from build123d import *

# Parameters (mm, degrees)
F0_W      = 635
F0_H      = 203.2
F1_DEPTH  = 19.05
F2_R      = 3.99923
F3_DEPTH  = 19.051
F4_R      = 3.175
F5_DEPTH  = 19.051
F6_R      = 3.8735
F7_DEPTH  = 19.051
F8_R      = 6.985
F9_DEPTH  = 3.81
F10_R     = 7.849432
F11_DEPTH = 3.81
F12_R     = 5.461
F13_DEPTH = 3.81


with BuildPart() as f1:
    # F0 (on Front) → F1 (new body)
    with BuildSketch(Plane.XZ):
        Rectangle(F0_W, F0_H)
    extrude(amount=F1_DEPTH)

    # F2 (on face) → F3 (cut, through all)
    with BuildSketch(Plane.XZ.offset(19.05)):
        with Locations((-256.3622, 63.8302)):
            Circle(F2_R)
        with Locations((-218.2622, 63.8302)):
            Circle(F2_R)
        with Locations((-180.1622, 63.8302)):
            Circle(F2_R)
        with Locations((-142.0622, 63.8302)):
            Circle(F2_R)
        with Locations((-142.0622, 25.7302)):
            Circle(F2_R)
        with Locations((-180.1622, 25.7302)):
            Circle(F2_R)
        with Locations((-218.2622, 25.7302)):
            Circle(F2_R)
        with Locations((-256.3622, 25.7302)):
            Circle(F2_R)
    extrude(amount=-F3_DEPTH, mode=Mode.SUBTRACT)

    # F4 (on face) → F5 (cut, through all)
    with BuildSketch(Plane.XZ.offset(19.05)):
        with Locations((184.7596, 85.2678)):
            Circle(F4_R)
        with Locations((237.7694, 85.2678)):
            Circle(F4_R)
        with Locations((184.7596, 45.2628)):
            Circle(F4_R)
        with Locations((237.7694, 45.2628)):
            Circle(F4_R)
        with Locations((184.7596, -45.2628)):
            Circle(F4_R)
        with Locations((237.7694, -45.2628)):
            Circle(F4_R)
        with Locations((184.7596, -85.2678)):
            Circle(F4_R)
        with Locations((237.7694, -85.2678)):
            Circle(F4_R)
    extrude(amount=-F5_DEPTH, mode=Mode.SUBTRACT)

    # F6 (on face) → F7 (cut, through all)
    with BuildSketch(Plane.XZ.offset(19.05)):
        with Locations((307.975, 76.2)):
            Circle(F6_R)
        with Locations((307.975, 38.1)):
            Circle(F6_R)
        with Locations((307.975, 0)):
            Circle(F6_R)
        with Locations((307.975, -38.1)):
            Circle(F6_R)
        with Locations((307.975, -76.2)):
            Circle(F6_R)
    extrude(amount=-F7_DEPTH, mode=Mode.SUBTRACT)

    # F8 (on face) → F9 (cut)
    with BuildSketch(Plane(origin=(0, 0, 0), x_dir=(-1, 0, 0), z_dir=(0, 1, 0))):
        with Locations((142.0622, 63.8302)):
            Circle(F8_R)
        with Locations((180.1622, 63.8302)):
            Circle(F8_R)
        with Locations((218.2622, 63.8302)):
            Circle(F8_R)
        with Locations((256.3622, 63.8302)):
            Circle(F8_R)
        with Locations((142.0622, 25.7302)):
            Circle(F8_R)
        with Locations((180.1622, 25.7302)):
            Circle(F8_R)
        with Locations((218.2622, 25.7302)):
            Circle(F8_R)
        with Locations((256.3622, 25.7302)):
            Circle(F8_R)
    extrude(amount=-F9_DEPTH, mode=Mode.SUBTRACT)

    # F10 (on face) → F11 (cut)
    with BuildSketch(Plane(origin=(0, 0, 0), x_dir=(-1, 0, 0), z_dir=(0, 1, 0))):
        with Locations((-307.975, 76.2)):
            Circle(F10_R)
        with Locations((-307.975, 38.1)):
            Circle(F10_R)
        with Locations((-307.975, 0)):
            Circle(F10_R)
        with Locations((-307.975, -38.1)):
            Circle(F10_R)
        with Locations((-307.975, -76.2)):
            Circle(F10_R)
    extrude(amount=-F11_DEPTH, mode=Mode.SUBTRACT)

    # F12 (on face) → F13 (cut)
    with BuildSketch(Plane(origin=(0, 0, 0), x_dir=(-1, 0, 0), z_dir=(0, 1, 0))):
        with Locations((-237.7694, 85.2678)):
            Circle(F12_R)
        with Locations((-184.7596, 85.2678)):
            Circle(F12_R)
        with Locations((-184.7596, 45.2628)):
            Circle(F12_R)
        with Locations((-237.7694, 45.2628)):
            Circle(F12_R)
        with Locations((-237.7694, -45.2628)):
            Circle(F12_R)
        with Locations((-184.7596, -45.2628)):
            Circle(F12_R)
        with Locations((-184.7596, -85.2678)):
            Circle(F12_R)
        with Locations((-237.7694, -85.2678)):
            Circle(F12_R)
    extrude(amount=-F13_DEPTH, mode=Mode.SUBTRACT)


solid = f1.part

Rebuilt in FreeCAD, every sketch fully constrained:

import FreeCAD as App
import Part
import Sketcher
from FreeCAD import Vector
Q = App.Units.Quantity


def add_polygon(sketch, points):
    """Adds a closed chain of lines whose ends are joined by coincident constraints."""
    first, n = sketch.GeometryCount, len(points)
    for a, b in zip(points, points[1:] + points[:1]):
        sketch.addGeometry(Part.LineSegment(App.Vector(*a, 0), App.Vector(*b, 0)), False)
    for i in range(n):
        sketch.addConstraint(Sketcher.Constraint("Coincident", first + i, 2, first + (i + 1) % n, 1))

doc = App.newDocument("Part")
body = doc.addObject("PartDesign::Body", "Body")

# Sketch on XZ plane
sketch1 = doc.addObject("Sketcher::SketchObject", "Sketch")
body.addObject(sketch1)
sketch1.AttachmentSupport = (doc.XZ_Plane, [""])
sketch1.MapMode = "FlatFace"
add_polygon(sketch1, [(-318, 102), (-318, -102), (318, -102), (318, 102)])  # lines 0-3
sketch1.addConstraint([
    Sketcher.Constraint("Vertical", 0),
    Sketcher.Constraint("Horizontal", 1),
    Sketcher.Constraint("Vertical", 2),
    Sketcher.Constraint("Horizontal", 3),
    Sketcher.Constraint("Symmetric", 0, 2, 2, 2, -1, 1),
    Sketcher.Constraint("DistanceX", 1, 1, 1, 2, Q("25 in")),
    Sketcher.Constraint("DistanceY", 0, 2, 0, 1, Q("8 in")),
])
pad1 = doc.addObject("PartDesign::Pad", "Pad")
body.addObject(pad1)
pad1.Profile = sketch1
pad1.Length = Q("0.75 in")

# Sketch on XZ plane
sketch2 = doc.addObject("Sketcher::SketchObject", "Sketch001")
body.addObject(sketch2)
sketch2.AttachmentSupport = (doc.XZ_Plane, [""])
sketch2.MapMode = "FlatFace"
sketch2.AttachmentOffset = App.Placement(Vector(0, 0, 0.75 * 25.4), App.Rotation())
sketch2.addGeometry([
    Part.Circle(Vector(-256.4, 63.8, 0), Vector(0, 0, 1), 4),  # 0
    Part.Circle(Vector(-218.3, 63.8, 0), Vector(0, 0, 1), 4),  # 1
    Part.Circle(Vector(-180.2, 63.8, 0), Vector(0, 0, 1), 4),  # 2
    Part.Circle(Vector(-142.1, 63.8, 0), Vector(0, 0, 1), 4),  # 3
    Part.Circle(Vector(-142.1, 25.7, 0), Vector(0, 0, 1), 4),  # 4
    Part.Circle(Vector(-180.2, 25.7, 0), Vector(0, 0, 1), 4),  # 5
    Part.Circle(Vector(-218.3, 25.7, 0), Vector(0, 0, 1), 4),  # 6
    Part.Circle(Vector(-256.4, 25.7, 0), Vector(0, 0, 1), 4),  # 7
], False)
sketch2.addConstraint([
    Sketcher.Constraint("Equal", 0, 1),
    Sketcher.Constraint("Equal", 1, 2),
    Sketcher.Constraint("Equal", 2, 3),
    Sketcher.Constraint("Equal", 3, 4),
    Sketcher.Constraint("Equal", 4, 5),
    Sketcher.Constraint("Equal", 5, 6),
    Sketcher.Constraint("Equal", 6, 7),
    Sketcher.Constraint("Horizontal", 0, 3, 1, 3),
    Sketcher.Constraint("Horizontal", 1, 3, 2, 3),
    Sketcher.Constraint("Horizontal", 2, 3, 3, 3),
    Sketcher.Constraint("Horizontal", 4, 3, 5, 3),
    Sketcher.Constraint("Horizontal", 5, 3, 6, 3),
    Sketcher.Constraint("Horizontal", 6, 3, 7, 3),
    Sketcher.Constraint("Vertical", 3, 3, 4, 3),
    Sketcher.Constraint("Vertical", 2, 3, 5, 3),
    Sketcher.Constraint("Vertical", 1, 3, 6, 3),
    Sketcher.Constraint("Vertical", 0, 3, 7, 3),
    Sketcher.Constraint("DistanceX", 0, 3, 2, 3, Q("3 in")),
    Sketcher.Constraint("DistanceX", 1, 3, 3, 3, Q("3 in")),
    Sketcher.Constraint("Diameter", 0, Q("0.3149 in")),
    Sketcher.Constraint("DistanceX", 0, 3, 1, 3, Q("1.5 in")),
    Sketcher.Constraint("DistanceY", 4, 3, 3, 3, Q("1.5 in")),
    Sketcher.Constraint("DistanceX", 0, 3, -1, 1, Q("10.093 in")),
    Sketcher.Constraint("DistanceY", -1, 1, 0, 3, Q("2.513 in")),
])
pocket1 = doc.addObject("PartDesign::Pocket", "Pocket")
body.addObject(pocket1)
pocket1.Profile = sketch2
pocket1.Type = "ThroughAll"

# Sketch on XZ plane
sketch3 = doc.addObject("Sketcher::SketchObject", "Sketch002")
body.addObject(sketch3)
sketch3.AttachmentSupport = (doc.XZ_Plane, [""])
sketch3.MapMode = "FlatFace"
sketch3.AttachmentOffset = App.Placement(Vector(0, 0, 0.75 * 25.4), App.Rotation())
sketch3.addGeometry([
    Part.Circle(Vector(184.8, 85.3, 0), Vector(0, 0, 1), 3.2),  # 0
    Part.Circle(Vector(237.8, 85.3, 0), Vector(0, 0, 1), 3.2),  # 1
    Part.Circle(Vector(184.8, 45.3, 0), Vector(0, 0, 1), 3.2),  # 2
    Part.Circle(Vector(237.8, 45.3, 0), Vector(0, 0, 1), 3.2),  # 3
    Part.Circle(Vector(184.8, -45.3, 0), Vector(0, 0, 1), 3.2),  # 4
    Part.Circle(Vector(237.8, -45.3, 0), Vector(0, 0, 1), 3.2),  # 5
    Part.Circle(Vector(184.8, -85.3, 0), Vector(0, 0, 1), 3.2),  # 6
    Part.Circle(Vector(237.8, -85.3, 0), Vector(0, 0, 1), 3.2),  # 7
], False)
sketch3.addConstraint([
    Sketcher.Constraint("Equal", 0, 1),
    Sketcher.Constraint("Equal", 1, 2),
    Sketcher.Constraint("Equal", 2, 3),
    Sketcher.Constraint("Equal", 3, 4),
    Sketcher.Constraint("Equal", 4, 5),
    Sketcher.Constraint("Equal", 5, 6),
    Sketcher.Constraint("Equal", 6, 7),
    Sketcher.Constraint("Symmetric", 2, 3, 4, 3, -1),
    Sketcher.Constraint("Symmetric", 3, 3, 5, 3, -1),
    Sketcher.Constraint("Symmetric", 0, 3, 6, 3, -1),
    Sketcher.Constraint("Symmetric", 1, 3, 7, 3, -1),
    Sketcher.Constraint("Horizontal", 0, 3, 1, 3),
    Sketcher.Constraint("Horizontal", 2, 3, 3, 3),
    Sketcher.Constraint("Vertical", 0, 3, 2, 3),
    Sketcher.Constraint("Vertical", 1, 3, 3, 3),
    Sketcher.Constraint("Diameter", 0, Q("0.25 in")),
    Sketcher.Constraint("DistanceX", -1, 1, 0, 3, Q("7.274 in")),
    Sketcher.Constraint("DistanceY", -1, 1, 0, 3, Q("3.357 in")),
    Sketcher.Constraint("DistanceX", -1, 1, 1, 3, Q("9.361 in")),
    Sketcher.Constraint("DistanceY", -1, 1, 2, 3, Q("1.782 in")),
])
pocket2 = doc.addObject("PartDesign::Pocket", "Pocket001")
body.addObject(pocket2)
pocket2.Profile = sketch3
pocket2.Type = "ThroughAll"

# Sketch on XZ plane
sketch4 = doc.addObject("Sketcher::SketchObject", "Sketch003")
body.addObject(sketch4)
sketch4.AttachmentSupport = (doc.XZ_Plane, [""])
sketch4.MapMode = "FlatFace"
sketch4.AttachmentOffset = App.Placement(Vector(0, 0, 0.75 * 25.4), App.Rotation())
sketch4.addGeometry([
    Part.Circle(Vector(308, 76.2, 0), Vector(0, 0, 1), 3.9),  # 0
    Part.Circle(Vector(308, 38.1, 0), Vector(0, 0, 1), 3.9),  # 1
    Part.Circle(Vector(308, 0, 0), Vector(0, 0, 1), 3.9),  # 2
    Part.Circle(Vector(308, -38.1, 0), Vector(0, 0, 1), 3.9),  # 3
    Part.Circle(Vector(308, -76.2, 0), Vector(0, 0, 1), 3.9),  # 4
], False)
sketch4.addConstraint([
    Sketcher.Constraint("Equal", 0, 1),
    Sketcher.Constraint("Equal", 1, 2),
    Sketcher.Constraint("Equal", 2, 3),
    Sketcher.Constraint("Equal", 3, 4),
    Sketcher.Constraint("Symmetric", 1, 3, 3, 3, -1),
    Sketcher.Constraint("Symmetric", 0, 3, 4, 3, -1),
    Sketcher.Constraint("PointOnObject", 2, 3, -1),
    Sketcher.Constraint("Vertical", 0, 3, 1, 3),
    Sketcher.Constraint("Vertical", 1, 3, 2, 3),
    Sketcher.Constraint("Diameter", 0, Q("0.305 in")),
    Sketcher.Constraint("DistanceY", -1, 1, 0, 3, Q("3 in")),
    Sketcher.Constraint("DistanceY", 3, 3, 1, 3, Q("3 in")),
    Sketcher.Constraint("DistanceX", -1, 1, 0, 3, Q("12.125 in")),
])
pocket3 = doc.addObject("PartDesign::Pocket", "Pocket002")
body.addObject(pocket3)
pocket3.Profile = sketch4
pocket3.Type = "ThroughAll"

# Sketch on XZ plane
sketch5 = doc.addObject("Sketcher::SketchObject", "Sketch004")
body.addObject(sketch5)
sketch5.AttachmentSupport = (doc.XZ_Plane, [""])
sketch5.MapMode = "FlatFace"
sketch5.addGeometry([
    Part.Circle(Vector(-142, 64, 0), Vector(0, 0, 1), 7),  # 0
    Part.Circle(Vector(-180, 64, 0), Vector(0, 0, 1), 7),  # 1
    Part.Circle(Vector(-218, 64, 0), Vector(0, 0, 1), 7),  # 2
    Part.Circle(Vector(-256, 64, 0), Vector(0, 0, 1), 7),  # 3
    Part.Circle(Vector(-142, 26, 0), Vector(0, 0, 1), 7),  # 4
    Part.Circle(Vector(-180, 26, 0), Vector(0, 0, 1), 7),  # 5
    Part.Circle(Vector(-218, 26, 0), Vector(0, 0, 1), 7),  # 6
    Part.Circle(Vector(-256, 26, 0), Vector(0, 0, 1), 7),  # 7
], False)
sketch5.addConstraint([
    Sketcher.Constraint("Equal", 0, 1),
    Sketcher.Constraint("Equal", 1, 2),
    Sketcher.Constraint("Equal", 2, 3),
    Sketcher.Constraint("Equal", 3, 4),
    Sketcher.Constraint("Equal", 4, 5),
    Sketcher.Constraint("Equal", 5, 6),
    Sketcher.Constraint("Equal", 6, 7),
    Sketcher.Constraint("Horizontal", 0, 3, 1, 3),
    Sketcher.Constraint("Horizontal", 1, 3, 2, 3),
    Sketcher.Constraint("Horizontal", 2, 3, 3, 3),
    Sketcher.Constraint("Horizontal", 4, 3, 5, 3),
    Sketcher.Constraint("Horizontal", 5, 3, 6, 3),
    Sketcher.Constraint("Horizontal", 6, 3, 7, 3),
    Sketcher.Constraint("Vertical", 0, 3, 4, 3),
    Sketcher.Constraint("Vertical", 1, 3, 5, 3),
    Sketcher.Constraint("Vertical", 2, 3, 6, 3),
    Sketcher.Constraint("Vertical", 3, 3, 7, 3),
    Sketcher.Constraint("Diameter", 0, Q("0.55 in")),
    Sketcher.Constraint("DistanceX", 2, 3, 0, 3, Q("3 in")),
    Sketcher.Constraint("DistanceX", 3, 3, 1, 3, Q("3 in")),
    Sketcher.Constraint("DistanceX", 1, 3, 0, 3, Q("1.5 in")),
    Sketcher.Constraint("DistanceY", 4, 3, 0, 3, Q("1.5 in")),
    Sketcher.Constraint("DistanceX", 0, 3, -1, 1, Q("5.593 in")),
    Sketcher.Constraint("DistanceY", -1, 1, 0, 3, Q("2.513 in")),
])
pocket4 = doc.addObject("PartDesign::Pocket", "Pocket003")
body.addObject(pocket4)
pocket4.Profile = sketch5
pocket4.Length = Q("0.15 in")
pocket4.Reversed = True

# Sketch on XZ plane
sketch6 = doc.addObject("Sketcher::SketchObject", "Sketch005")
body.addObject(sketch6)
sketch6.AttachmentSupport = (doc.XZ_Plane, [""])
sketch6.MapMode = "FlatFace"
sketch6.addGeometry([
    Part.Circle(Vector(308, 76, 0), Vector(0, 0, 1), 8),  # 0
    Part.Circle(Vector(308, 38, 0), Vector(0, 0, 1), 8),  # 1
    Part.Circle(Vector(308, 0, 0), Vector(0, 0, 1), 8),  # 2
    Part.Circle(Vector(308, -38, 0), Vector(0, 0, 1), 8),  # 3
    Part.Circle(Vector(308, -76, 0), Vector(0, 0, 1), 8),  # 4
], False)
sketch6.addConstraint([
    Sketcher.Constraint("Equal", 0, 1),
    Sketcher.Constraint("Equal", 1, 2),
    Sketcher.Constraint("Equal", 2, 3),
    Sketcher.Constraint("Equal", 3, 4),
    Sketcher.Constraint("Symmetric", 1, 3, 3, 3, -1),
    Sketcher.Constraint("Symmetric", 0, 3, 4, 3, -1),
    Sketcher.Constraint("PointOnObject", 2, 3, -1),
    Sketcher.Constraint("Vertical", 0, 3, 1, 3),
    Sketcher.Constraint("Vertical", 1, 3, 2, 3),
    Sketcher.Constraint("DistanceY", -1, 1, 0, 3, Q("3 in")),
    Sketcher.Constraint("DistanceY", 3, 3, 1, 3, Q("3 in")),
    Sketcher.Constraint("DistanceX", -1, 1, 0, 3, Q("12.125 in")),
    Sketcher.Constraint("Diameter", 0, 15.698864),
])
pocket5 = doc.addObject("PartDesign::Pocket", "Pocket004")
body.addObject(pocket5)
pocket5.Profile = sketch6
pocket5.Length = Q("0.15 in")
pocket5.Reversed = True

# Sketch on XZ plane
sketch7 = doc.addObject("Sketcher::SketchObject", "Sketch006")
body.addObject(sketch7)
sketch7.AttachmentSupport = (doc.XZ_Plane, [""])
sketch7.MapMode = "FlatFace"
sketch7.addGeometry([
    Part.Circle(Vector(238, 85, 0), Vector(0, 0, 1), 5),  # 0
    Part.Circle(Vector(185, 85, 0), Vector(0, 0, 1), 5),  # 1
    Part.Circle(Vector(185, 45, 0), Vector(0, 0, 1), 5),  # 2
    Part.Circle(Vector(238, 45, 0), Vector(0, 0, 1), 5),  # 3
    Part.Circle(Vector(238, -45, 0), Vector(0, 0, 1), 5),  # 4
    Part.Circle(Vector(185, -45, 0), Vector(0, 0, 1), 5),  # 5
    Part.Circle(Vector(185, -85, 0), Vector(0, 0, 1), 5),  # 6
    Part.Circle(Vector(238, -85, 0), Vector(0, 0, 1), 5),  # 7
], False)
sketch7.addConstraint([
    Sketcher.Constraint("Equal", 0, 1),
    Sketcher.Constraint("Equal", 1, 2),
    Sketcher.Constraint("Equal", 2, 3),
    Sketcher.Constraint("Equal", 3, 4),
    Sketcher.Constraint("Equal", 4, 5),
    Sketcher.Constraint("Equal", 5, 6),
    Sketcher.Constraint("Equal", 6, 7),
    Sketcher.Constraint("Symmetric", 3, 3, 4, 3, -1),
    Sketcher.Constraint("Symmetric", 2, 3, 5, 3, -1),
    Sketcher.Constraint("Symmetric", 1, 3, 6, 3, -1),
    Sketcher.Constraint("Symmetric", 0, 3, 7, 3, -1),
    Sketcher.Constraint("Horizontal", 0, 3, 1, 3),
    Sketcher.Constraint("Horizontal", 2, 3, 3, 3),
    Sketcher.Constraint("Vertical", 1, 3, 2, 3),
    Sketcher.Constraint("Vertical", 0, 3, 3, 3),
    Sketcher.Constraint("Diameter", 0, Q("0.43 in")),
    Sketcher.Constraint("DistanceX", -1, 1, 0, 3, Q("9.361 in")),
    Sketcher.Constraint("DistanceY", -1, 1, 0, 3, Q("3.357 in")),
    Sketcher.Constraint("DistanceX", -1, 1, 1, 3, Q("7.274 in")),
    Sketcher.Constraint("DistanceY", -1, 1, 2, 3, Q("1.782 in")),
])
pocket6 = doc.addObject("PartDesign::Pocket", "Pocket005")
body.addObject(pocket6)
pocket6.Profile = sketch7
pocket6.Length = Q("0.15 in")
pocket6.Reversed = True

doc.recompute()
